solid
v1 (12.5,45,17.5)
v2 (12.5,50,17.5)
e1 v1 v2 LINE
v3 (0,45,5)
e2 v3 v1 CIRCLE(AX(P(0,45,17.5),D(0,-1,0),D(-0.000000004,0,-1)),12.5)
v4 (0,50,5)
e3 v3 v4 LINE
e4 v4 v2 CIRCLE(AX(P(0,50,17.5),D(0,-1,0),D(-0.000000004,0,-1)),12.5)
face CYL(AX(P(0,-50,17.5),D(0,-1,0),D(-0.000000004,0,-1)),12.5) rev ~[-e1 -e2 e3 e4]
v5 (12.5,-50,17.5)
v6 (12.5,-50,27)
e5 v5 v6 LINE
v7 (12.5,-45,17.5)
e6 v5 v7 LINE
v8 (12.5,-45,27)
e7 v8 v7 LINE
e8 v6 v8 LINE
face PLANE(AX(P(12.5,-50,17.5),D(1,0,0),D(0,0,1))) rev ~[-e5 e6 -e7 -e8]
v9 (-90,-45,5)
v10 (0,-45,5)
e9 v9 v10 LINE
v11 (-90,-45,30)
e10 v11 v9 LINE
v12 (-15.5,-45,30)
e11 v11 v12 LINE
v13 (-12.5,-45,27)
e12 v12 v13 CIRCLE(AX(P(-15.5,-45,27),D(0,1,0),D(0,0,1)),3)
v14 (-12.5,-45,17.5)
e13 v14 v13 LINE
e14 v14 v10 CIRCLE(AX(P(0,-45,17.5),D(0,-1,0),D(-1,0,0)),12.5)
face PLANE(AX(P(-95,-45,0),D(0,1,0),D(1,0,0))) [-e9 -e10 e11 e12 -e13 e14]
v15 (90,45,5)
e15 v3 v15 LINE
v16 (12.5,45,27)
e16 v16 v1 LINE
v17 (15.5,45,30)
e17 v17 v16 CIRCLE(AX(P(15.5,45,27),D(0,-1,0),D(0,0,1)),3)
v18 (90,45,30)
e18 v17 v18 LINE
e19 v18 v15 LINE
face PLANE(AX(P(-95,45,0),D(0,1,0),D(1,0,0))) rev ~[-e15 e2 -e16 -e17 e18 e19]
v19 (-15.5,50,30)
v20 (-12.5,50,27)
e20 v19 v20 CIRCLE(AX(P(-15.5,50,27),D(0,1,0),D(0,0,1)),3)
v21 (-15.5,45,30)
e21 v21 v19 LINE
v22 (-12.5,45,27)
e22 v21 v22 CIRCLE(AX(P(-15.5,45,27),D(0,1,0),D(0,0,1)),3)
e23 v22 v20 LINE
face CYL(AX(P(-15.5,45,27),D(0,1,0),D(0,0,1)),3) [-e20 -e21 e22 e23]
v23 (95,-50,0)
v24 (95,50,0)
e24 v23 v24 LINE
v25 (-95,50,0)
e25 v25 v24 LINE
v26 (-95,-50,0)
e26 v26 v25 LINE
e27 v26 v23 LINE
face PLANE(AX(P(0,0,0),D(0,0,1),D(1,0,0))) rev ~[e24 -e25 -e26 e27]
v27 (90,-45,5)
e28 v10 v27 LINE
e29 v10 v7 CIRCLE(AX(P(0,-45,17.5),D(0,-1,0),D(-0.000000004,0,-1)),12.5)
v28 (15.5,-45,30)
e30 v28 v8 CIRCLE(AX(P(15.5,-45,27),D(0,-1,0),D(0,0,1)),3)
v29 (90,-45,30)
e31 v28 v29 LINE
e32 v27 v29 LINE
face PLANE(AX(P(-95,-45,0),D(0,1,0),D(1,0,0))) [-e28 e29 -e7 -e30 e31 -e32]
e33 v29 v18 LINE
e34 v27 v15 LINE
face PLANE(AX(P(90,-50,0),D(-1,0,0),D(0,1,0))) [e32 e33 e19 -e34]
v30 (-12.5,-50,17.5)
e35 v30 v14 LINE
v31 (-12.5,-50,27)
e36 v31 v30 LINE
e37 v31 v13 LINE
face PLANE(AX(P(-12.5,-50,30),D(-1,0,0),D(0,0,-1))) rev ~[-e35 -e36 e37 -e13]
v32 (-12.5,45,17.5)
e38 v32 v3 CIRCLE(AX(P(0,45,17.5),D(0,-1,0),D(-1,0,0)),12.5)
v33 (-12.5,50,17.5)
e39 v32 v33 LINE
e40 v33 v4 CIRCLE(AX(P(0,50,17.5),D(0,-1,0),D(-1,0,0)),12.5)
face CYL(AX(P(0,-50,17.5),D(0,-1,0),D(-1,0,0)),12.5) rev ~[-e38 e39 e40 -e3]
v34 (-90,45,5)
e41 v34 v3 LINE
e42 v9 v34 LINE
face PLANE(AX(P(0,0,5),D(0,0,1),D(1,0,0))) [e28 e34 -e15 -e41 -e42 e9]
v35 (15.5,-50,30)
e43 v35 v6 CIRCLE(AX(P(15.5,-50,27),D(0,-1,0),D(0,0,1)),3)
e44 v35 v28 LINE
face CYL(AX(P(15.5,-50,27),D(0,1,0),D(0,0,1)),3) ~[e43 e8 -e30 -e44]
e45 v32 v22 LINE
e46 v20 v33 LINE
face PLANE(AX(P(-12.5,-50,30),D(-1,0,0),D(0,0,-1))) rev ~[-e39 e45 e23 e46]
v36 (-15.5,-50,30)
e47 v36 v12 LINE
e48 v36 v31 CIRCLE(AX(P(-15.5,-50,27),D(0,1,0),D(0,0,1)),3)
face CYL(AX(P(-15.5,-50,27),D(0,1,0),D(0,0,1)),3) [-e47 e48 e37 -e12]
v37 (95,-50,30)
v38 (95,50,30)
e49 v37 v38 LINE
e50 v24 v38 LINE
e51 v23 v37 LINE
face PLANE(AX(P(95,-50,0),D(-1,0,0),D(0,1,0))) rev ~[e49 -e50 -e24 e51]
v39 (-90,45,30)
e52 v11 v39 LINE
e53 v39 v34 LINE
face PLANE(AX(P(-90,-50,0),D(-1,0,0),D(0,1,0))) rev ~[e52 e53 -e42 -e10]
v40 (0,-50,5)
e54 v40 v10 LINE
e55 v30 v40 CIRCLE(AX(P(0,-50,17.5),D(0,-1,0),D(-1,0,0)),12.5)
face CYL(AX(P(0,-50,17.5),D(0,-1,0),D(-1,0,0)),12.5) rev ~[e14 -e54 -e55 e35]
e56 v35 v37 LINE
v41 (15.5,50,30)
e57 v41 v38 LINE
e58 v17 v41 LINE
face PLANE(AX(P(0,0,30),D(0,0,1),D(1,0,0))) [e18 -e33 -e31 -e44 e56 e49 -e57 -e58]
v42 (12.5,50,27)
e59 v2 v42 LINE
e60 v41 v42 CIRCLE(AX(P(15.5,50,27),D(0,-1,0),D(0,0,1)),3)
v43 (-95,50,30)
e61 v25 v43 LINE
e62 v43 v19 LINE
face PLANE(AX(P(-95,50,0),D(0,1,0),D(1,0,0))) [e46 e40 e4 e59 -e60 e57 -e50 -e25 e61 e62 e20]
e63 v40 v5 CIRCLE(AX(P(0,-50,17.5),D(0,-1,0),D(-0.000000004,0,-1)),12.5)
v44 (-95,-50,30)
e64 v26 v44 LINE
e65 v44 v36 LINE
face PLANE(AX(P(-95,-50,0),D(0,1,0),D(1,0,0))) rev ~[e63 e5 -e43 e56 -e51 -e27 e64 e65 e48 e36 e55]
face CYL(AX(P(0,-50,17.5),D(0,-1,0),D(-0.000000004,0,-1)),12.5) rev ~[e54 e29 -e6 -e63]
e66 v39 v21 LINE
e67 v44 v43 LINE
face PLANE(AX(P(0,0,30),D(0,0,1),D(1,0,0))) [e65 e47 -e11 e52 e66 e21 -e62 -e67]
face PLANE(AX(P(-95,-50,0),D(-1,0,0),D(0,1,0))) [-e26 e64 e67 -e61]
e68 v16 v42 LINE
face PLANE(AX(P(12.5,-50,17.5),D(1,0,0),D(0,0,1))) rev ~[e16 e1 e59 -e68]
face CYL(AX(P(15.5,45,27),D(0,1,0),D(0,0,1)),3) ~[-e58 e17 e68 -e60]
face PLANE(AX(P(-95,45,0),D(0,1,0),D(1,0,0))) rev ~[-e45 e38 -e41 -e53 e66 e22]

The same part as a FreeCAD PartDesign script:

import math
import FreeCAD as App
import Part
import Sketcher
from FreeCAD import Vector


def edges_at(feature, points):
    """Names of the edges that pass closest to the given points."""
    edges = feature.Shape.Edges
    near = lambda p: min(range(len(edges)), key=lambda i: edges[i].distToShape(Part.Vertex(*p))[0])
    return sorted({f"Edge{near(p) + 1}" for p in points})


def faces_at(feature, points):
    """Names of the faces that lie closest to the given points."""
    faces = feature.Shape.Faces
    near = lambda p: min(range(len(faces)), key=lambda i: faces[i].distToShape(Part.Vertex(*p))[0])
    return sorted({f"Face{near(p) + 1}" for p in points})


def add_polygon(sketch, points):
    """Adds a closed chain of lines whose ends are joined by coincident constraints."""
    first, n = sketch.GeometryCount, len(points)
    for a, b in zip(points, points[1:] + points[:1]):
        sketch.addGeometry(Part.LineSegment(App.Vector(*a, 0), App.Vector(*b, 0)), False)
    for i in range(n):
        sketch.addConstraint(Sketcher.Constraint("Coincident", first + i, 2, first + (i + 1) % n, 1))

doc = App.newDocument("Part")
body = doc.addObject("PartDesign::Body", "Body")

sketch1 = body.newObject("Sketcher::SketchObject", "Sketch")
sketch1.AttachmentSupport = (doc.getObject("XY_Plane"), [""])
sketch1.MapMode = "FlatFace"
add_polygon(sketch1, [(-95, 50), (-95, -50), (95, -50), (95, 50)])
sketch1.addConstraint([
    Sketcher.Constraint("Vertical", 0),
    Sketcher.Constraint("Horizontal", 1),
    Sketcher.Constraint("Vertical", 2),
    Sketcher.Constraint("Horizontal", 3),
    Sketcher.Constraint("Symmetric", 0, 2, 2, 2, -1, 1),
    Sketcher.Constraint("DistanceX", 1, 1, 1, 2, 190.0),
    Sketcher.Constraint("DistanceY", 0, 2, 0, 1, 100.0),
])
pad1 = body.newObject("PartDesign::Pad", "Pad")
pad1.Profile = sketch1
pad1.Length = 30
doc.recompute()

thickness = body.newObject("PartDesign::Thickness", "Thickness")
thickness.Base = (pad1, faces_at(pad1, [(0, 0, 30)]))
thickness.Value = 5
thickness.Reversed = True
thickness.Join = "Arc"

sketch2 = body.newObject("Sketcher::SketchObject", "Sketch001")
sketch2.AttachmentSupport = (doc.getObject("XZ_Plane"), [""])
sketch2.MapMode = "FlatFace"
sketch2.AttachmentOffset = App.Placement(Vector(0, 0, 50), App.Rotation())
sketch2.addGeometry([
    Part.ArcOfCircle(Part.Circle(Vector(0, 17.5, 0), Vector(0, 0, 1), 12.5), math.radians(-90), math.radians(0)),
    Part.LineSegment(Vector(12.5, 17.5, 0), Vector(12.5, 30, 0)),
    Part.LineSegment(Vector(12.5, 30, 0), Vector(-12.5, 30, 0)),
    Part.LineSegment(Vector(-12.5, 30, 0), Vector(-12.5, 17.5, 0)),
    Part.ArcOfCircle(Part.Circle(Vector(0, 17.5, 0), Vector(0, 0, 1), 12.5), math.radians(180), math.radians(270)),
], False)
sketch2.addConstraint([
    Sketcher.Constraint("Tangent", 0, 2, 1, 1),
    Sketcher.Constraint("Coincident", 1, 2, 2, 1),
    Sketcher.Constraint("Coincident", 2, 2, 3, 1),
    Sketcher.Constraint("Tangent", 3, 2, 4, 1),
    Sketcher.Constraint("Tangent", 4, 2, 0, 1),
    Sketcher.Constraint("Vertical", 1),
    Sketcher.Constraint("Horizontal", 2),
    Sketcher.Constraint("Vertical", 3),
    Sketcher.Constraint("Equal", 0, 4),
    Sketcher.Constraint("PointOnObject", 0, 3, -2),
    Sketcher.Constraint("PointOnObject", 4, 2, -2),
    Sketcher.Constraint("Radius", 0, 12.5),
    Sketcher.Constraint("DistanceY", 1, 1, 1, 2, 12.5),
    Sketcher.Constraint("DistanceY", -1, 1, 1, 2, 30.0),
])
pocket1 = body.newObject("PartDesign::Pocket", "Pocket")
pocket1.Profile = sketch2
pocket1.Type = "ThroughAll"
doc.recompute()

fillet = body.newObject("PartDesign::Fillet", "Fillet")
fillet.Base = (pocket1, edges_at(pocket1, [
    (-12.5, -47.5, 30),
    (12.5, -47.5, 30),
    (-12.5, 47.5, 30),
    (12.5, 47.5, 30),
]))
fillet.Radius = 3

doc.recompute()
